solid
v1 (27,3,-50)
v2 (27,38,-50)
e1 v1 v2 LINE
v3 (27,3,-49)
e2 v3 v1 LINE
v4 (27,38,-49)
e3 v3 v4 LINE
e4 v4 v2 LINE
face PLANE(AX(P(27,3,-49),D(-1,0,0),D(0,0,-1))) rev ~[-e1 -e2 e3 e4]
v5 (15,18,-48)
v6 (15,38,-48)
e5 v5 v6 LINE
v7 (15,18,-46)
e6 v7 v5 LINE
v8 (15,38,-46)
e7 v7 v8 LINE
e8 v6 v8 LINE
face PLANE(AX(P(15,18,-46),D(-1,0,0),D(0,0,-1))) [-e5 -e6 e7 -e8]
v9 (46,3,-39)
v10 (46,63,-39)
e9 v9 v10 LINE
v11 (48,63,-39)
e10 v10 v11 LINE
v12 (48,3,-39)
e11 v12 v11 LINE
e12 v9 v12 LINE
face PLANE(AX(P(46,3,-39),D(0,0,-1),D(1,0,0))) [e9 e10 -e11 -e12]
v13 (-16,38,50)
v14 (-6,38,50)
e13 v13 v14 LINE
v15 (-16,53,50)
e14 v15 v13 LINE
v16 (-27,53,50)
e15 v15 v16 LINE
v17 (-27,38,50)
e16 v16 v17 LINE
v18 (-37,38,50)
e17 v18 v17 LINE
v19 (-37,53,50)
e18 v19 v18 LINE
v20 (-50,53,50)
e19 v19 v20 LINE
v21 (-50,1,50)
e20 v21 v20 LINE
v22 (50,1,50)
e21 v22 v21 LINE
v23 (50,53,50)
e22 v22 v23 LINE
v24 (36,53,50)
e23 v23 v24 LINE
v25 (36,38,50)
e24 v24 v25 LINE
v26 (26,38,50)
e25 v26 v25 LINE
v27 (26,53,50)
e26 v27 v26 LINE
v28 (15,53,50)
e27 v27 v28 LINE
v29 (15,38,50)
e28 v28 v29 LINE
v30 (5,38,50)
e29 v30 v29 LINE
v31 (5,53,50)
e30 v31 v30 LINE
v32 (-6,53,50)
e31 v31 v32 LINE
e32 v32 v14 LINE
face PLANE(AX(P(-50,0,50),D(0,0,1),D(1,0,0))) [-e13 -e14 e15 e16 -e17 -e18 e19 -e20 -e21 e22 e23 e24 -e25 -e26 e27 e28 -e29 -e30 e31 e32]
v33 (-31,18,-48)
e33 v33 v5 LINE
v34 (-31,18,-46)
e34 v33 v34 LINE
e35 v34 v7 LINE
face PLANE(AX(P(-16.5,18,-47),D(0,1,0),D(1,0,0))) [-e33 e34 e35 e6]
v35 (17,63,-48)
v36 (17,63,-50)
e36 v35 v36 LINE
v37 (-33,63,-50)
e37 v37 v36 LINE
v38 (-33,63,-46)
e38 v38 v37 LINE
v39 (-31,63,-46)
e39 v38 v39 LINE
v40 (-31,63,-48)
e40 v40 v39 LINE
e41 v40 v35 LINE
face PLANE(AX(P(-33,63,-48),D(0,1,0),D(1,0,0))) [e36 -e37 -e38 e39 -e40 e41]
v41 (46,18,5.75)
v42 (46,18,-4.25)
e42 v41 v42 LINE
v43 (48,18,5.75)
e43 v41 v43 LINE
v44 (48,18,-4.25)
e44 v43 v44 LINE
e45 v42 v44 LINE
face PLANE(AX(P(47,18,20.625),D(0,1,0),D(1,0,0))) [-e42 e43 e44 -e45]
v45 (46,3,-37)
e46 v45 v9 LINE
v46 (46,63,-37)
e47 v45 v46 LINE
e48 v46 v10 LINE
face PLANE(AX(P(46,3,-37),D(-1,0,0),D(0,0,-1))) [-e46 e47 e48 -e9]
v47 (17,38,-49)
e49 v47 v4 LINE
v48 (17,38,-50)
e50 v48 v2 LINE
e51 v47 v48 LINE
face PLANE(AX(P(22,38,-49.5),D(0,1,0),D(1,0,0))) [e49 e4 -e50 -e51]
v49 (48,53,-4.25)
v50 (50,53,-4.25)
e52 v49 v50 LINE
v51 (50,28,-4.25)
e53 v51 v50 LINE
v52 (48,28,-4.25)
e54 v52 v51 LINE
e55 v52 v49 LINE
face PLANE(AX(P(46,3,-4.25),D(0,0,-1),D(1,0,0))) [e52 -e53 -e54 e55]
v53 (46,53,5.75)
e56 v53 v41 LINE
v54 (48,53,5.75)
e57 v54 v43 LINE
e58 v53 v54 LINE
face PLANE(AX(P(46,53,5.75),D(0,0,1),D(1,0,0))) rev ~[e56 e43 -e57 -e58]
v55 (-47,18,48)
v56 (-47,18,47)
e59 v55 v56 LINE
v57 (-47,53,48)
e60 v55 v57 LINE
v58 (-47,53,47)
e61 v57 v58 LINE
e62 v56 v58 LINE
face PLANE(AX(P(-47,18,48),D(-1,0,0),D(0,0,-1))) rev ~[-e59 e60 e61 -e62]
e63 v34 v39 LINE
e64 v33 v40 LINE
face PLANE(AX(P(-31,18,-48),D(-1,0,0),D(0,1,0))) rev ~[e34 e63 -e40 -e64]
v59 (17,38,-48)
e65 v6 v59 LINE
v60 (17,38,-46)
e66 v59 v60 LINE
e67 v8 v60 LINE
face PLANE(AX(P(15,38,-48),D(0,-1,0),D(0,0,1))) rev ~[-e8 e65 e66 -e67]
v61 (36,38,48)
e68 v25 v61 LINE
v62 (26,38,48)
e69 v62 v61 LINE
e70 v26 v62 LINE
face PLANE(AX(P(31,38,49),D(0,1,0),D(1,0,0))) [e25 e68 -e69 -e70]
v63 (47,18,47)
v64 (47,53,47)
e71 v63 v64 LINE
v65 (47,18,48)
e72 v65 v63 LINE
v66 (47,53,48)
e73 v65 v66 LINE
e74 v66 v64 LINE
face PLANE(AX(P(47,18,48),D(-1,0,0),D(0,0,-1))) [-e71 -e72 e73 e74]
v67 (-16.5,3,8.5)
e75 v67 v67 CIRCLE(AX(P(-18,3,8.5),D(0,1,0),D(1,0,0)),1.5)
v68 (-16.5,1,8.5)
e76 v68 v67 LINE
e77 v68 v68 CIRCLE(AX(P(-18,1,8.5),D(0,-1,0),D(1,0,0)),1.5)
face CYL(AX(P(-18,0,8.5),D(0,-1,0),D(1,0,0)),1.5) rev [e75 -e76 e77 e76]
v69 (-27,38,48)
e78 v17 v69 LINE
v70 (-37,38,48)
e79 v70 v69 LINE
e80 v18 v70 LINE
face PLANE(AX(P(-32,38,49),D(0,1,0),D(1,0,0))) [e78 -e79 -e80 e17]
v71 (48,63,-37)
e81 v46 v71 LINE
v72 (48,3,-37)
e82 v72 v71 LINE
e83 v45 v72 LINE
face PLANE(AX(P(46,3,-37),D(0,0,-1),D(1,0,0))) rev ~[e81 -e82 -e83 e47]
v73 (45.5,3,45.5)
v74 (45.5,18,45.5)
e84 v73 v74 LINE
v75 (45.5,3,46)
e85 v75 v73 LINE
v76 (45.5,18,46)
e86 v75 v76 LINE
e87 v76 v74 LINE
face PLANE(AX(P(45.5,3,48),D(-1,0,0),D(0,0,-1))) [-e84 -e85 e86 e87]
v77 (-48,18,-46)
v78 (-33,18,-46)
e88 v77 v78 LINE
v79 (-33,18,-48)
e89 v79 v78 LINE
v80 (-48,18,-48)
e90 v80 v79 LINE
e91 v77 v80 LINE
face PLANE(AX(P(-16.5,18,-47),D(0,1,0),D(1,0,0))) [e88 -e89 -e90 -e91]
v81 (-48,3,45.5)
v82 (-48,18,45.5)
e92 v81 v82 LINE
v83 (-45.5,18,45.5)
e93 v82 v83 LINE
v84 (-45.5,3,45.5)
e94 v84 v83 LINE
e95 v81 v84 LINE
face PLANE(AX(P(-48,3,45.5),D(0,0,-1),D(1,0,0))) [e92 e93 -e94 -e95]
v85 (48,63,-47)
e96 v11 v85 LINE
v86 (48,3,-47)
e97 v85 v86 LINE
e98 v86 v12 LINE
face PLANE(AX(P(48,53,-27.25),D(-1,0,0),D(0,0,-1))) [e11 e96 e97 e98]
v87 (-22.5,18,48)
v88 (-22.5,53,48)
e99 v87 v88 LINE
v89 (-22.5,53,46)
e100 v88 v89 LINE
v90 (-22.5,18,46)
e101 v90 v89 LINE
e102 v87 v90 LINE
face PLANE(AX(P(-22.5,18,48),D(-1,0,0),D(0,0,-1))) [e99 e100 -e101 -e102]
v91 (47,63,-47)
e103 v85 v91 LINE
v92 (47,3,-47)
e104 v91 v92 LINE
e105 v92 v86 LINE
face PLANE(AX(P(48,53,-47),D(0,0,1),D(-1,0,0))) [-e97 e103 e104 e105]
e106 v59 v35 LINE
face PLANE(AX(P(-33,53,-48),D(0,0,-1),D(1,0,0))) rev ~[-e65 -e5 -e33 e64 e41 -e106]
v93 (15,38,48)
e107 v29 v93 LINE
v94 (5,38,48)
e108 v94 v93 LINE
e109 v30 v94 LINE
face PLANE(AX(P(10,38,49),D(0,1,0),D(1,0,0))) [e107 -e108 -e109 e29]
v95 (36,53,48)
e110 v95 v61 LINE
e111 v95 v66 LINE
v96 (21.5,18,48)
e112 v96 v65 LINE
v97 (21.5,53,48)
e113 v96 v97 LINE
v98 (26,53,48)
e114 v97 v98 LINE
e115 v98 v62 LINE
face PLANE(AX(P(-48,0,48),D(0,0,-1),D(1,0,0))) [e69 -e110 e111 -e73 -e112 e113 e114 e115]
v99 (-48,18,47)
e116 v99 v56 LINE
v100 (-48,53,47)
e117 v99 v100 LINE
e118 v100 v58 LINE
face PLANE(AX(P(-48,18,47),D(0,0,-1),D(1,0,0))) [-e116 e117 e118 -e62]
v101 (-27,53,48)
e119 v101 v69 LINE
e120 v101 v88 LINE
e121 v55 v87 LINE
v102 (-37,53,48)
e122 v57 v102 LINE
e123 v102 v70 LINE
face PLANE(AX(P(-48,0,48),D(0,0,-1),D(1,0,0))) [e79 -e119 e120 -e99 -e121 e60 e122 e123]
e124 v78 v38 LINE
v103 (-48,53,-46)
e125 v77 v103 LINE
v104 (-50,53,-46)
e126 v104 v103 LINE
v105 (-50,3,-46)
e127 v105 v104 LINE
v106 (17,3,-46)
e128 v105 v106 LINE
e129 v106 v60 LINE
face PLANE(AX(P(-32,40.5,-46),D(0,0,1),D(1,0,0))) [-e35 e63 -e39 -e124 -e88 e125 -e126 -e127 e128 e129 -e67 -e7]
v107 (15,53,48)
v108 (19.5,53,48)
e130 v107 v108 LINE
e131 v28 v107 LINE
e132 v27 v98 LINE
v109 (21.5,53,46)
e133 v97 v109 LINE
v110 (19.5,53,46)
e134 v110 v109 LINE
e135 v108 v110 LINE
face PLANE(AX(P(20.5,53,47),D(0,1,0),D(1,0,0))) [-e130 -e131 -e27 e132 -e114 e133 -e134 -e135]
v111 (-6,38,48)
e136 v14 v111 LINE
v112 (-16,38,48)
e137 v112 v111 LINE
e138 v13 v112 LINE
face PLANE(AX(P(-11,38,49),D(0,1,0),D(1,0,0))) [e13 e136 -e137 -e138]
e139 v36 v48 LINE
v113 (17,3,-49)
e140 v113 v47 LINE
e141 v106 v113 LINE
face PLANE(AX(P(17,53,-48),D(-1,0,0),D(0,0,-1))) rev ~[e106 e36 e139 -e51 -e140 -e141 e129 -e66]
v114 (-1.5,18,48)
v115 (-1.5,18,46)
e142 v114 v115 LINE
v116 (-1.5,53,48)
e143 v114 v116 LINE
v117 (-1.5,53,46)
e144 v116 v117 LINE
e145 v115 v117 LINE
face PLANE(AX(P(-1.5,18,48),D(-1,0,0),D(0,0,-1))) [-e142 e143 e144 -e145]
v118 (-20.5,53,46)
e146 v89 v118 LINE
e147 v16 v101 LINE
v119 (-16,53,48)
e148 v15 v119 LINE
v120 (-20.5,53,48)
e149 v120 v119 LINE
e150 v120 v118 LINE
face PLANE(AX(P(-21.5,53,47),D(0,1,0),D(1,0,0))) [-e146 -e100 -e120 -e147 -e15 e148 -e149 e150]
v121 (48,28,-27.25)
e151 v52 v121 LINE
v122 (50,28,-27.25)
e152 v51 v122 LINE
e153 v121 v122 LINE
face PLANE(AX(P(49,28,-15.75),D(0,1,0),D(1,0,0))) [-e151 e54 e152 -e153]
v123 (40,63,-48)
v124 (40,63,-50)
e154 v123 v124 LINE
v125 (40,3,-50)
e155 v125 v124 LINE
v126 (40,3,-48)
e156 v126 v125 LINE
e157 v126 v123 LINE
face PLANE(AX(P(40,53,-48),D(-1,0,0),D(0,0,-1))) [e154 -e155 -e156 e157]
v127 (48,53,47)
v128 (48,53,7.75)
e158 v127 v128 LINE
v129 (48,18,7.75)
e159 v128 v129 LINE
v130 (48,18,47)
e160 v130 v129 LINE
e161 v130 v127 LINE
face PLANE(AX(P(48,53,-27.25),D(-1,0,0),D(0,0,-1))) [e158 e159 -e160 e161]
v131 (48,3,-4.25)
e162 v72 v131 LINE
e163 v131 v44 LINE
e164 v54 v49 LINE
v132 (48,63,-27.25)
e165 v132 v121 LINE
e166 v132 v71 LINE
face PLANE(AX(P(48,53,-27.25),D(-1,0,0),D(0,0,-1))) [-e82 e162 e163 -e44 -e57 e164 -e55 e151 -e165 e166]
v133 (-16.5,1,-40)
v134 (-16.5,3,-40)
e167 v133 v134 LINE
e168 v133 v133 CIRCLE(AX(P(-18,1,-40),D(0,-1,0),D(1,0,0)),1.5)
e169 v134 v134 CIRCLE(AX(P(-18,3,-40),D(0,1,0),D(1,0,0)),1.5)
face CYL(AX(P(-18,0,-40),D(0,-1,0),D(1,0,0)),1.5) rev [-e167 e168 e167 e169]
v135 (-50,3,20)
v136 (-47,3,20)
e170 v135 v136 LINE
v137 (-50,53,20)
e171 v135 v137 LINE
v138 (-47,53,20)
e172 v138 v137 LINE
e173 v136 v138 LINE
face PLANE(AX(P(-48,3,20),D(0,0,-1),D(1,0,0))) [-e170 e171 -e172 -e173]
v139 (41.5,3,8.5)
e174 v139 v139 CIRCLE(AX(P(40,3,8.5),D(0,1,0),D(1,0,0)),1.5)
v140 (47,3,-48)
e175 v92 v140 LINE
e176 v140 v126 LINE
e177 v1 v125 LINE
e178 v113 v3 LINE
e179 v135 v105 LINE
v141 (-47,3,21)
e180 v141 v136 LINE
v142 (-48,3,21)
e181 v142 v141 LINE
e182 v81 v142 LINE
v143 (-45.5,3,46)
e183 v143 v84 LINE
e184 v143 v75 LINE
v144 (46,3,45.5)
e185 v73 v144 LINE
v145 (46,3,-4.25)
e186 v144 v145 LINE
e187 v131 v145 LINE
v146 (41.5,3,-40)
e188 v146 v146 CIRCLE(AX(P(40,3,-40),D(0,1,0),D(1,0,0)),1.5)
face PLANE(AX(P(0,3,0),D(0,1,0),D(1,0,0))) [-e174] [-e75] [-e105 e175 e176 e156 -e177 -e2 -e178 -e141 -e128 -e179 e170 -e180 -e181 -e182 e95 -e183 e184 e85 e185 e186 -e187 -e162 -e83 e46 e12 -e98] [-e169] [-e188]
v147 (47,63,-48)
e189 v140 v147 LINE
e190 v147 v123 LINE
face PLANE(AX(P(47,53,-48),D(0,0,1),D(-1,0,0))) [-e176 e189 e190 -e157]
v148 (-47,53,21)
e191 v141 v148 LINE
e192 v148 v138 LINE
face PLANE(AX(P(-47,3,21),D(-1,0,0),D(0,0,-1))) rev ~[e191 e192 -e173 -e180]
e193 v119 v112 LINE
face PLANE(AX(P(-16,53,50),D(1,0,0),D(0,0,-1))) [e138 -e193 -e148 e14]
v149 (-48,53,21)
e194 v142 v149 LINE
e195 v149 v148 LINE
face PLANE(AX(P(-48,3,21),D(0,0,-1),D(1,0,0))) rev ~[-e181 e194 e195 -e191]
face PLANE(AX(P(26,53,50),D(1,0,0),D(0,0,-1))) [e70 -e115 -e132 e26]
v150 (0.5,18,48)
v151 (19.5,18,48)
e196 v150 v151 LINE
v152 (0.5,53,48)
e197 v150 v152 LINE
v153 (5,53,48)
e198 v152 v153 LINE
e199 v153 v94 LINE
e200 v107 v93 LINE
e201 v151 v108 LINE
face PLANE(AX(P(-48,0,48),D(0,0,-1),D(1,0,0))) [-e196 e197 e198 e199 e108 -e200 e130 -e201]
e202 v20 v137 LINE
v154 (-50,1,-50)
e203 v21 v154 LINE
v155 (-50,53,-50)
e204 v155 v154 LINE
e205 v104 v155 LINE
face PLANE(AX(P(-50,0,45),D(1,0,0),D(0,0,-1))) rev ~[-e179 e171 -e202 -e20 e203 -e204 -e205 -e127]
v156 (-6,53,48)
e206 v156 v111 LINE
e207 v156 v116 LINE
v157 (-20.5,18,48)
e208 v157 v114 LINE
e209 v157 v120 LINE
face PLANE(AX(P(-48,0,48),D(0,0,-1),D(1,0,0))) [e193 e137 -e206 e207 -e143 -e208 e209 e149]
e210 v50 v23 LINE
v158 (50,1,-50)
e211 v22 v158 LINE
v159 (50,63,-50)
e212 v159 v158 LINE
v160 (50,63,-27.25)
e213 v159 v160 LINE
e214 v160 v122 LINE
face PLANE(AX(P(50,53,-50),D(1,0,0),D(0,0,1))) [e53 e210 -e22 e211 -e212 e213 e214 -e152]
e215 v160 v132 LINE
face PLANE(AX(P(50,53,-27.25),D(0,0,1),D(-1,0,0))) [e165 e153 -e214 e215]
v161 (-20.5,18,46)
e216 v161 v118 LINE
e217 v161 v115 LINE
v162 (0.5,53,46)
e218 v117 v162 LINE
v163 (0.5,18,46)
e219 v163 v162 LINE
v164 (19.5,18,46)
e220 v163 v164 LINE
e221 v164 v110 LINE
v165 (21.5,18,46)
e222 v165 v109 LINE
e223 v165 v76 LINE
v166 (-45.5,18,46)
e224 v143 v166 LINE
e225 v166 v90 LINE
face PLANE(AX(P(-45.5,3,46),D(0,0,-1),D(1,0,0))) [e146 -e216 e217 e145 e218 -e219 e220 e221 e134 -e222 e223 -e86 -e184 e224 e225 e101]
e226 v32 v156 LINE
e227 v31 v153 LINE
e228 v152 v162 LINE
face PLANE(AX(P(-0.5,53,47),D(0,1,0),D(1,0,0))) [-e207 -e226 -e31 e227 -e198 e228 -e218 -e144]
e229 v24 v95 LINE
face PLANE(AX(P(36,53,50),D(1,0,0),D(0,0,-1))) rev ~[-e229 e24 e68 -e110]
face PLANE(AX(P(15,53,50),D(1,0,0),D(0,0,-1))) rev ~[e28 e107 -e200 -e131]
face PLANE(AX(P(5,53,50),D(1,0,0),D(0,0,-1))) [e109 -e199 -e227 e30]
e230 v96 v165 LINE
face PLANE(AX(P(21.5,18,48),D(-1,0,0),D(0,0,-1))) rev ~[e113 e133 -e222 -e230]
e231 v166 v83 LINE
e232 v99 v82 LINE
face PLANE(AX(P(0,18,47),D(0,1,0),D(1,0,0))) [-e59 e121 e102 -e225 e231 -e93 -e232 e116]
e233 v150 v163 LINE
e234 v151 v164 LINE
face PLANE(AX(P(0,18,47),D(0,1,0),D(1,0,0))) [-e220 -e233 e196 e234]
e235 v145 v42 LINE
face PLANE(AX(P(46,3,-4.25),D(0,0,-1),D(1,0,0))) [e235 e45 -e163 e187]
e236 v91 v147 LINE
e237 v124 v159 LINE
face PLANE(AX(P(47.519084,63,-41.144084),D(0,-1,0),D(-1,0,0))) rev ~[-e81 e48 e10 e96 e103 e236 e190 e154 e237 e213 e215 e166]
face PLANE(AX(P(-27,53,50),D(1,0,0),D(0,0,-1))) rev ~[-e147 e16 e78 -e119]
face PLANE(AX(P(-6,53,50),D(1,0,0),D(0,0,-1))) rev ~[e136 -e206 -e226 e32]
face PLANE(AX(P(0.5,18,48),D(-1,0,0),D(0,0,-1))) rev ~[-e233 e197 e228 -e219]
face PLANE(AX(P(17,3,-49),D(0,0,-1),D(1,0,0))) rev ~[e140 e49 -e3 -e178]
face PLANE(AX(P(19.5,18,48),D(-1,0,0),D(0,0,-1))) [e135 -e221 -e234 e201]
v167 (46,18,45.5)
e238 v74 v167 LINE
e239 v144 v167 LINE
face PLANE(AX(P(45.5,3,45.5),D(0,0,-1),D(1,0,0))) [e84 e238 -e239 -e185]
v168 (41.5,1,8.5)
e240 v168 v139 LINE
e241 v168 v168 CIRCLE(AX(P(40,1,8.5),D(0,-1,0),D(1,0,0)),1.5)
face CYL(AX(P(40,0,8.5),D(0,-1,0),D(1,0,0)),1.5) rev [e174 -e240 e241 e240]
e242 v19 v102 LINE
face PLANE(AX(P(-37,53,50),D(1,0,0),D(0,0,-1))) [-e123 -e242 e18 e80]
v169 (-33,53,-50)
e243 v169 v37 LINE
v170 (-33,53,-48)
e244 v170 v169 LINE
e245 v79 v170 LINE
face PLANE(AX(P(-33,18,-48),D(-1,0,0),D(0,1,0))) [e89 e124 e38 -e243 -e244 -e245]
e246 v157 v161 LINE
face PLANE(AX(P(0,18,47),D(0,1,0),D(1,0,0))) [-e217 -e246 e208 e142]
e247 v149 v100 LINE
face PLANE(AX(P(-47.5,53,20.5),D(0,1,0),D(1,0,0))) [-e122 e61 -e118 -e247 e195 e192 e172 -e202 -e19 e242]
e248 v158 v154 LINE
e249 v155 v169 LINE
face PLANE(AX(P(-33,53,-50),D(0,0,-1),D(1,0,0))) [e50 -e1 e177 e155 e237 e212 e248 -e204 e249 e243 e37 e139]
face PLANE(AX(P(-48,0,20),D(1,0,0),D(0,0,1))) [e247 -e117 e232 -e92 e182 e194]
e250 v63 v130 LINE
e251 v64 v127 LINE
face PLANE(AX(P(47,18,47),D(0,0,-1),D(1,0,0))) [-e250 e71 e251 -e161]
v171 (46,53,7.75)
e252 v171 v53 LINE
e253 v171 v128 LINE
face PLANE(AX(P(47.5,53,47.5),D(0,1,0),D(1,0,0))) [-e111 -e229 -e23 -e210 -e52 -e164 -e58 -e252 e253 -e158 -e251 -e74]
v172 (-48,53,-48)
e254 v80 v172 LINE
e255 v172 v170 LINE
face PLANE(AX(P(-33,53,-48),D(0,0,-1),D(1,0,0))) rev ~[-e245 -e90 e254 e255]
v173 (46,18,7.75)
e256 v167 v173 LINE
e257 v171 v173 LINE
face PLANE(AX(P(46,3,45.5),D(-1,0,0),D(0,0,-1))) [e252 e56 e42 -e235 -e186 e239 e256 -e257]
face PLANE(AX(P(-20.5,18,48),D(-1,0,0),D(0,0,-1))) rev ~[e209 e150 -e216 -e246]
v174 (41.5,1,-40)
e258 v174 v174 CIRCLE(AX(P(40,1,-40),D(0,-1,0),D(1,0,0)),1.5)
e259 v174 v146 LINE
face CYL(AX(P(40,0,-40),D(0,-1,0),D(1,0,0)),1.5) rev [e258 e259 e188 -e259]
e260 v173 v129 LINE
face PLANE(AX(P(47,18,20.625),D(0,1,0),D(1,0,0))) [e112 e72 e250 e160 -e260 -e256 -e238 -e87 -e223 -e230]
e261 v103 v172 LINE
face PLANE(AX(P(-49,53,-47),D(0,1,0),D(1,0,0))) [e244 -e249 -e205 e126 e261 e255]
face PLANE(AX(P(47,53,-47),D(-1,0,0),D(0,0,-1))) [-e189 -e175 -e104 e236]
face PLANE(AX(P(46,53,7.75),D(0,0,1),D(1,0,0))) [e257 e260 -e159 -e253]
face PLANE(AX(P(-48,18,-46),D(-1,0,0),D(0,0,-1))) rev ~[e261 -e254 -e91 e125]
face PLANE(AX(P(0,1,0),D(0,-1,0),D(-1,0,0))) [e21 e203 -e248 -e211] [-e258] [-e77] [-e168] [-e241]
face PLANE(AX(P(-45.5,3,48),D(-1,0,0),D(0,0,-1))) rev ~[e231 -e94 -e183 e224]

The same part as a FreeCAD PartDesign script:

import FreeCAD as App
import Part
import Sketcher

V = App.Vector


def add_polygon(sketch, points):
    """Adds a closed chain of lines whose ends are joined by coincident constraints."""
    first, n = sketch.GeometryCount, len(points)
    for a, b in zip(points, points[1:] + points[:1]):
        sketch.addGeometry(Part.LineSegment(App.Vector(*a, 0), App.Vector(*b, 0)), False)
    for i in range(n):
        sketch.addConstraint(Sketcher.Constraint("Coincident", first + i, 2, first + (i + 1) % n, 1))

doc = App.newDocument("Part")
body = doc.addObject("PartDesign::Body", "Body")

sketch1 = body.newObject("Sketcher::SketchObject", "Sketch")
sketch1.AttachmentSupport = (doc.getObject("XZ_Plane"), [""])
sketch1.MapMode = "FlatFace"
add_polygon(sketch1, [(-50, -50), (-50, 50), (50, 50), (50, -50)])
sketch1.addConstraint(Sketcher.Constraint("Vertical", 0))
sketch1.addConstraint(Sketcher.Constraint("Horizontal", 1))
sketch1.addConstraint(Sketcher.Constraint("Vertical", 2))
sketch1.addConstraint(Sketcher.Constraint("Horizontal", 3))
sketch1.addConstraint(Sketcher.Constraint("Symmetric", 0, 2, 2, 2, -1, 1))
sketch1.addConstraint(Sketcher.Constraint("Equal", 3, 0))
sketch1.addConstraint(Sketcher.Constraint("DistanceX", 1, 1, 1, 2, 100.0))
pad1 = body.newObject("PartDesign::Pad", "Pad")
pad1.Profile = sketch1
pad1.Length = 3
pad1.Reversed = True

sketch2 = body.newObject("Sketcher::SketchObject", "Sketch001")
sketch2.AttachmentSupport = (doc.getObject("XZ_Plane"), [""])
sketch2.MapMode = "FlatFace"
sketch2.addGeometry(Part.Circle(V(-18, -40, 0), V(0, 0, 1), 1.5), False)
sketch2.addGeometry(Part.Circle(V(40, -40, 0), V(0, 0, 1), 1.5), False)
sketch2.addGeometry(Part.Circle(V(40, 8.5, 0), V(0, 0, 1), 1.5), False)
sketch2.addGeometry(Part.Circle(V(-18, 8.5, 0), V(0, 0, 1), 1.5), False)
sketch2.addConstraint(Sketcher.Constraint("Equal", 0, 1))
sketch2.addConstraint(Sketcher.Constraint("Equal", 1, 2))
sketch2.addConstraint(Sketcher.Constraint("Equal", 2, 3))
sketch2.addConstraint(Sketcher.Constraint("Horizontal", 0, 3, 1, 3))
sketch2.addConstraint(Sketcher.Constraint("Horizontal", 2, 3, 3, 3))
sketch2.addConstraint(Sketcher.Constraint("Vertical", 1, 3, 2, 3))
sketch2.addConstraint(Sketcher.Constraint("Vertical", 0, 3, 3, 3))
sketch2.addConstraint(Sketcher.Constraint("Diameter", 0, 3.0))
sketch2.addConstraint(Sketcher.Constraint("DistanceX", 0, 3, -1, 1, 18.0))
sketch2.addConstraint(Sketcher.Constraint("DistanceY", 0, 3, -1, 1, 40.0))
sketch2.addConstraint(Sketcher.Constraint("DistanceX", -1, 1, 1, 3, 40.0))
sketch2.addConstraint(Sketcher.Constraint("DistanceY", -1, 1, 2, 3, 8.5))
pocket1 = body.newObject("PartDesign::Pocket", "Pocket")
pocket1.Profile = sketch2
pocket1.Length = 3

sketch3 = body.newObject("Sketcher::SketchObject", "Sketch002")
sketch3.AttachmentSupport = (doc.getObject("XZ_Plane"), [""])
sketch3.MapMode = "FlatFace"
add_polygon(sketch3, [(40, -50), (40, -48), (48, -48), (48, -27.2), (50, -27.2), (50, -50)])
add_polygon(sketch3, [(-48, 20), (-50, 20), (-50, 50), (50, 50), (50, -4.2), (48, -4.2), (48, 48), (-48, 48)])
add_polygon(sketch3, [(-50, -50), (-50, -48), (25, -48), (25, -50)])
sketch3.addConstraint(Sketcher.Constraint("Vertical", 0))
sketch3.addConstraint(Sketcher.Constraint("Horizontal", 1))
sketch3.addConstraint(Sketcher.Constraint("Vertical", 2))
sketch3.addConstraint(Sketcher.Constraint("Horizontal", 3))
sketch3.addConstraint(Sketcher.Constraint("Vertical", 4))
sketch3.addConstraint(Sketcher.Constraint("Horizontal", 5))
sketch3.addConstraint(Sketcher.Constraint("Horizontal", 6))
sketch3.addConstraint(Sketcher.Constraint("Vertical", 7))
sketch3.addConstraint(Sketcher.Constraint("Horizontal", 8))
sketch3.addConstraint(Sketcher.Constraint("Vertical", 9))
sketch3.addConstraint(Sketcher.Constraint("Horizontal", 10))
sketch3.addConstraint(Sketcher.Constraint("Vertical", 11))
sketch3.addConstraint(Sketcher.Constraint("Horizontal", 12))
sketch3.addConstraint(Sketcher.Constraint("Vertical", 13))
sketch3.addConstraint(Sketcher.Constraint("Vertical", 14))
sketch3.addConstraint(Sketcher.Constraint("Horizontal", 15))
sketch3.addConstraint(Sketcher.Constraint("Vertical", 16))
sketch3.addConstraint(Sketcher.Constraint("Horizontal", 17))
sketch3.addConstraint(Sketcher.Constraint("Symmetric", 4, 2, 7, 2, -1, 1))
sketch3.addConstraint(Sketcher.Constraint("Symmetric", 1, 2, 12, 2, -1, 1))
sketch3.addConstraint(Sketcher.Constraint("Symmetric", 8, 2, 17, 2, -1, 1))
sketch3.addConstraint(Sketcher.Constraint("Horizontal", 1, 2, 14, 2))
sketch3.addConstraint(Sketcher.Constraint("Vertical", 4, 2, 8, 2))
sketch3.addConstraint(Sketcher.Constraint("Vertical", 2, 2, 10, 2))
sketch3.addConstraint(Sketcher.Constraint("Equal", 10, 0))
sketch3.addConstraint(Sketcher.Constraint("DistanceX", 1, 1, 1, 2, 8.0))
sketch3.addConstraint(Sketcher.Constraint("DistanceX", 3, 1, 3, 2, 2.0))
sketch3.addConstraint(Sketcher.Constraint("DistanceX", 8, 1, 8, 2, 100.0))
sketch3.addConstraint(Sketcher.Constraint("DistanceX", 15, 1, 15, 2, 75.0))
sketch3.addConstraint(Sketcher.Constraint("DistanceY", 7, 1, 7, 2, 30.0))
sketch3.addConstraint(Sketcher.Constraint("DistanceY", 0, 2, -1, 1, 48.0))
sketch3.addConstraint(Sketcher.Constraint("DistanceY", 3, 2, 9, 2, 23.0))
sketch3.addConstraint(Sketcher.Constraint("DistanceY", 2, 1, 2, 2, 20.75))
pad2 = body.newObject("PartDesign::Pad", "Pad001")
pad2.Profile = sketch3
pad2.Length = 53
pad2.Reversed = True

sketch4 = body.newObject("Sketcher::SketchObject", "Sketch003")
sketch4.AttachmentSupport = (doc.getObject("XZ_Plane"), [""])
sketch4.MapMode = "FlatFace"
sketch4.AttachmentOffset = App.Placement(V(0, 0, -53), App.Rotation())
add_polygon(sketch4, [(17, -50), (17, -48), (25, -48), (25, -50)])
sketch4.addConstraint(Sketcher.Constraint("Vertical", 0))
sketch4.addConstraint(Sketcher.Constraint("Horizontal", 1))
sketch4.addConstraint(Sketcher.Constraint("Vertical", 2))
sketch4.addConstraint(Sketcher.Constraint("Horizontal", 3))
sketch4.addConstraint(Sketcher.Constraint("DistanceX", 1, 1, 1, 2, 8.0))
sketch4.addConstraint(Sketcher.Constraint("DistanceY", 0, 1, 0, 2, 2.0))
sketch4.addConstraint(Sketcher.Constraint("DistanceX", -1, 1, 0, 2, 17.0))
sketch4.addConstraint(Sketcher.Constraint("DistanceY", 0, 2, -1, 1, 48.0))
pocket2 = body.newObject("PartDesign::Pocket", "Pocket001")
pocket2.Profile = sketch4
pocket2.Length = 50
pocket2.Reversed = True

sketch5 = body.newObject("Sketcher::SketchObject", "Sketch004")
sketch5.AttachmentSupport = (doc.getObject("XZ_Plane"), [""])
sketch5.MapMode = "FlatFace"
sketch5.AttachmentOffset = App.Placement(V(0, 0, -53), App.Rotation())
add_polygon(sketch5, [(-37, 48), (-37, 50), (-27, 50), (-27, 48)])
add_polygon(sketch5, [(-16, 48), (-16, 50), (-6, 50), (-6, 48)])
add_polygon(sketch5, [(5, 48), (5, 50), (15, 50), (15, 48)])
add_polygon(sketch5, [(26, 48), (26, 50), (36, 50), (36, 48)])
sketch5.addConstraint(Sketcher.Constraint("Vertical", 0))
sketch5.addConstraint(Sketcher.Constraint("Horizontal", 1))
sketch5.addConstraint(Sketcher.Constraint("Vertical", 2))
sketch5.addConstraint(Sketcher.Constraint("Horizontal", 3))
sketch5.addConstraint(Sketcher.Constraint("Vertical", 4))
sketch5.addConstraint(Sketcher.Constraint("Horizontal", 5))
sketch5.addConstraint(Sketcher.Constraint("Vertical", 6))
sketch5.addConstraint(Sketcher.Constraint("Horizontal", 7))
sketch5.addConstraint(Sketcher.Constraint("Vertical", 8))
sketch5.addConstraint(Sketcher.Constraint("Horizontal", 9))
sketch5.addConstraint(Sketcher.Constraint("Vertical", 10))
sketch5.addConstraint(Sketcher.Constraint("Horizontal", 11))
sketch5.addConstraint(Sketcher.Constraint("Vertical", 12))
sketch5.addConstraint(Sketcher.Constraint("Horizontal", 13))
sketch5.addConstraint(Sketcher.Constraint("Vertical", 14))
sketch5.addConstraint(Sketcher.Constraint("Horizontal", 15))
sketch5.addConstraint(Sketcher.Constraint("Horizontal", 1, 2, 4, 2))
sketch5.addConstraint(Sketcher.Constraint("Horizontal", 3, 2, 6, 2))
sketch5.addConstraint(Sketcher.Constraint("Horizontal", 5, 2, 8, 2))
sketch5.addConstraint(Sketcher.Constraint("Horizontal", 7, 2, 10, 2))
sketch5.addConstraint(Sketcher.Constraint("Horizontal", 9, 2, 12, 2))
sketch5.addConstraint(Sketcher.Constraint("Horizontal", 11, 2, 14, 2))
sketch5.addConstraint(Sketcher.Constraint("Equal", 3, 5))
sketch5.addConstraint(Sketcher.Constraint("Equal", 7, 9))
sketch5.addConstraint(Sketcher.Constraint("Equal", 11, 13))
sketch5.addConstraint(Sketcher.Constraint("DistanceX", 1, 1, 1, 2, 10.0))
sketch5.addConstraint(Sketcher.Constraint("DistanceY", 0, 1, 0, 2, 2.0))
sketch5.addConstraint(Sketcher.Constraint("DistanceX", 0, 2, -1, 1, 37.0))
sketch5.addConstraint(Sketcher.Constraint("DistanceY", -1, 1, 0, 2, 50.0))
sketch5.addConstraint(Sketcher.Constraint("DistanceX", 4, 2, -1, 1, 16.0))
sketch5.addConstraint(Sketcher.Constraint("DistanceX", -1, 1, 8, 2, 5.0))
sketch5.addConstraint(Sketcher.Constraint("DistanceX", -1, 1, 12, 2, 26.0))
pocket3 = body.newObject("PartDesign::Pocket", "Pocket002")
pocket3.Profile = sketch5
pocket3.Length = 15
pocket3.Reversed = True

sketch6 = body.newObject("Sketcher::SketchObject", "Sketch005")
sketch6.AttachmentSupport = (doc.getObject("XZ_Plane"), [""])
sketch6.MapMode = "FlatFace"
sketch6.AttachmentOffset = App.Placement(V(0, 0, -3), App.Rotation())
add_polygon(sketch6, [(-50, -48), (-50, -46), (17, -46), (17, -48)])
sketch6.addConstraint(Sketcher.Constraint("Vertical", 0))
sketch6.addConstraint(Sketcher.Constraint("Horizontal", 1))
sketch6.addConstraint(Sketcher.Constraint("Vertical", 2))
sketch6.addConstraint(Sketcher.Constraint("Horizontal", 3))
sketch6.addConstraint(Sketcher.Constraint("DistanceX", 1, 1, 1, 2, 67.0))
sketch6.addConstraint(Sketcher.Constraint("DistanceY", 0, 1, 0, 2, 2.0))
sketch6.addConstraint(Sketcher.Constraint("DistanceX", 0, 2, -1, 1, 50.0))
sketch6.addConstraint(Sketcher.Constraint("DistanceY", 0, 2, -1, 1, 46.0))
pad3 = body.newObject("PartDesign::Pad", "Pad002")
pad3.Profile = sketch6
pad3.Length = 15
pad3.Reversed = True

sketch7 = body.newObject("Sketcher::SketchObject", "Sketch006")
sketch7.AttachmentSupport = (doc.getObject("XZ_Plane"), [""])
sketch7.MapMode = "FlatFace"
sketch7.AttachmentOffset = App.Placement(V(0, 0, -3), App.Rotation())
add_polygon(sketch7, [(45.5, 45.5), (45.5, 48), (48, 48), (48, 45.5)])
sketch7.addConstraint(Sketcher.Constraint("Vertical", 0))
sketch7.addConstraint(Sketcher.Constraint("Horizontal", 1))
sketch7.addConstraint(Sketcher.Constraint("Vertical", 2))
sketch7.addConstraint(Sketcher.Constraint("Horizontal", 3))
sketch7.addConstraint(Sketcher.Constraint("Equal", 3, 0))
sketch7.addConstraint(Sketcher.Constraint("DistanceX", 1, 1, 1, 2, 2.5))
sketch7.addConstraint(Sketcher.Constraint("DistanceY", -1, 1, 0, 2, 48.0))
sketch7.addConstraint(Sketcher.Constraint("DistanceX", -1, 1, 1, 2, 48.0))
pad4 = body.newObject("PartDesign::Pad", "Pad003")
pad4.Profile = sketch7
pad4.Length = 15
pad4.Reversed = True

sketch8 = body.newObject("Sketcher::SketchObject", "Sketch007")
sketch8.AttachmentSupport = (doc.getObject("XZ_Plane"), [""])
sketch8.MapMode = "FlatFace"
sketch8.AttachmentOffset = App.Placement(V(0, 0, -3), App.Rotation())
add_polygon(sketch8, [(-48, 45.5), (-48, 48), (-45.5, 48), (-45.5, 45.5)])
sketch8.addConstraint(Sketcher.Constraint("Vertical", 0))
sketch8.addConstraint(Sketcher.Constraint("Horizontal", 1))
sketch8.addConstraint(Sketcher.Constraint("Vertical", 2))
sketch8.addConstraint(Sketcher.Constraint("Horizontal", 3))
sketch8.addConstraint(Sketcher.Constraint("Equal", 3, 0))
sketch8.addConstraint(Sketcher.Constraint("DistanceX", 1, 1, 1, 2, 2.5))
sketch8.addConstraint(Sketcher.Constraint("DistanceX", 0, 2, -1, 1, 48.0))
sketch8.addConstraint(Sketcher.Constraint("DistanceY", -1, 1, 0, 2, 48.0))
pad5 = body.newObject("PartDesign::Pad", "Pad004")
pad5.Profile = sketch8
pad5.Length = 15
pad5.Reversed = True

sketch9 = body.newObject("Sketcher::SketchObject", "Sketch008")
sketch9.AttachmentSupport = (doc.getObject("XZ_Plane"), [""])
sketch9.MapMode = "FlatFace"
sketch9.AttachmentOffset = App.Placement(V(0, 0, -3), App.Rotation())
add_polygon(sketch9, [(47, -48), (47, -47), (48, -47), (48, -48)])
sketch9.addConstraint(Sketcher.Constraint("Vertical", 0))
sketch9.addConstraint(Sketcher.Constraint("Horizontal", 1))
sketch9.addConstraint(Sketcher.Constraint("Vertical", 2))
sketch9.addConstraint(Sketcher.Constraint("Horizontal", 3))
sketch9.addConstraint(Sketcher.Constraint("Equal", 3, 0))
sketch9.addConstraint(Sketcher.Constraint("DistanceX", 1, 1, 1, 2, 1.0))
sketch9.addConstraint(Sketcher.Constraint("DistanceX", -1, 1, 0, 2, 47.0))
sketch9.addConstraint(Sketcher.Constraint("DistanceY", 0, 2, -1, 1, 47.0))
pad6 = body.newObject("PartDesign::Pad", "Pad005")
pad6.Profile = sketch9
pad6.Length = 50
pad6.Reversed = True

sketch10 = body.newObject("Sketcher::SketchObject", "Sketch009")
sketch10.AttachmentSupport = (doc.getObject("XZ_Plane"), [""])
sketch10.MapMode = "FlatFace"
sketch10.AttachmentOffset = App.Placement(V(0, 0, -18), App.Rotation())
add_polygon(sketch10, [(47, 47), (47, 48), (48, 48), (48, 47)])
sketch10.addConstraint(Sketcher.Constraint("Vertical", 0))
sketch10.addConstraint(Sketcher.Constraint("Horizontal", 1))
sketch10.addConstraint(Sketcher.Constraint("Vertical", 2))
sketch10.addConstraint(Sketcher.Constraint("Horizontal", 3))
sketch10.addConstraint(Sketcher.Constraint("Equal", 3, 0))
sketch10.addConstraint(Sketcher.Constraint("DistanceX", 1, 1, 1, 2, 1.0))
sketch10.addConstraint(Sketcher.Constraint("DistanceX", -1, 1, 0, 2, 47.0))
sketch10.addConstraint(Sketcher.Constraint("DistanceY", -1, 1, 0, 2, 48.0))
pad7 = body.newObject("PartDesign::Pad", "Pad006")
pad7.Profile = sketch10
pad7.Length = 35
pad7.Reversed = True

sketch11 = body.newObject("Sketcher::SketchObject", "Sketch010")
sketch11.AttachmentSupport = (doc.getObject("XZ_Plane"), [""])
sketch11.MapMode = "FlatFace"
sketch11.AttachmentOffset = App.Placement(V(0, 0, -18), App.Rotation())
add_polygon(sketch11, [(-48, 47), (-48, 48), (-47, 48), (-47, 47)])
sketch11.addConstraint(Sketcher.Constraint("Vertical", 0))
sketch11.addConstraint(Sketcher.Constraint("Horizontal", 1))
sketch11.addConstraint(Sketcher.Constraint("Vertical", 2))
sketch11.addConstraint(Sketcher.Constraint("Horizontal", 3))
sketch11.addConstraint(Sketcher.Constraint("Equal", 3, 0))
sketch11.addConstraint(Sketcher.Constraint("DistanceX", 1, 1, 1, 2, 1.0))
sketch11.addConstraint(Sketcher.Constraint("DistanceX", 0, 2, -1, 1, 48.0))
sketch11.addConstraint(Sketcher.Constraint("DistanceY", -1, 1, 0, 2, 48.0))
pad8 = body.newObject("PartDesign::Pad", "Pad007")
pad8.Profile = sketch11
pad8.Length = 35
pad8.Reversed = True

sketch12 = body.newObject("Sketcher::SketchObject", "Sketch011")
sketch12.AttachmentSupport = (doc.getObject("XZ_Plane"), [""])
sketch12.MapMode = "FlatFace"
sketch12.AttachmentOffset = App.Placement(V(0, 0, -3), App.Rotation())
add_polygon(sketch12, [(-48, 20), (-48, 21), (-47, 21), (-47, 20)])
sketch12.addConstraint(Sketcher.Constraint("Vertical", 0))
sketch12.addConstraint(Sketcher.Constraint("Horizontal", 1))
sketch12.addConstraint(Sketcher.Constraint("Vertical", 2))
sketch12.addConstraint(Sketcher.Constraint("Horizontal", 3))
sketch12.addConstraint(Sketcher.Constraint("Equal", 3, 0))
sketch12.addConstraint(Sketcher.Constraint("DistanceX", 1, 1, 1, 2, 1.0))
sketch12.addConstraint(Sketcher.Constraint("DistanceX", 0, 2, -1, 1, 48.0))
sketch12.addConstraint(Sketcher.Constraint("DistanceY", -1, 1, 0, 2, 21.0))
pad9 = body.newObject("PartDesign::Pad", "Pad008")
pad9.Profile = sketch12
pad9.Length = 50
pad9.Reversed = True

sketch13 = body.newObject("Sketcher::SketchObject", "Sketch012")
sketch13.AttachmentSupport = (doc.getObject("XZ_Plane"), [""])
sketch13.MapMode = "FlatFace"
sketch13.AttachmentOffset = App.Placement(V(0, 0, -3), App.Rotation())
add_polygon(sketch13, [(-45.5, 46), (-45.5, 48), (45.5, 48), (45.5, 46)])
sketch13.addConstraint(Sketcher.Constraint("Vertical", 0))
sketch13.addConstraint(Sketcher.Constraint("Horizontal", 1))
sketch13.addConstraint(Sketcher.Constraint("Vertical", 2))
sketch13.addConstraint(Sketcher.Constraint("Horizontal", 3))
sketch13.addConstraint(Sketcher.Constraint("DistanceX", 1, 1, 1, 2, 91.0))
sketch13.addConstraint(Sketcher.Constraint("DistanceY", 0, 1, 0, 2, 2.0))
sketch13.addConstraint(Sketcher.Constraint("DistanceY", -1, 1, 0, 2, 48.0))
sketch13.addConstraint(Sketcher.Constraint("DistanceX", 0, 2, -1, 1, 45.5))
pad10 = body.newObject("PartDesign::Pad", "Pad009")
pad10.Profile = sketch13
pad10.Length = 15
pad10.Reversed = True

sketch14 = body.newObject("Sketcher::SketchObject", "Sketch013")
sketch14.AttachmentSupport = (doc.getObject("XZ_Plane"), [""])
sketch14.MapMode = "FlatFace"
sketch14.AttachmentOffset = App.Placement(V(0, 0, -18), App.Rotation())
add_polygon(sketch14, [(19.5, 46), (19.5, 48), (21.5, 48), (21.5, 46)])
add_polygon(sketch14, [(-1.5, 46), (-1.5, 48), (0.5, 48), (0.5, 46)])
add_polygon(sketch14, [(-22.5, 46), (-22.5, 48), (-20.5, 48), (-20.5, 46)])
sketch14.addConstraint(Sketcher.Constraint("Vertical", 0))
sketch14.addConstraint(Sketcher.Constraint("Horizontal", 1))
sketch14.addConstraint(Sketcher.Constraint("Vertical", 2))
sketch14.addConstraint(Sketcher.Constraint("Horizontal", 3))
sketch14.addConstraint(Sketcher.Constraint("Vertical", 4))
sketch14.addConstraint(Sketcher.Constraint("Horizontal", 5))
sketch14.addConstraint(Sketcher.Constraint("Vertical", 6))
sketch14.addConstraint(Sketcher.Constraint("Horizontal", 7))
sketch14.addConstraint(Sketcher.Constraint("Vertical", 8))
sketch14.addConstraint(Sketcher.Constraint("Horizontal", 9))
sketch14.addConstraint(Sketcher.Constraint("Vertical", 10))
sketch14.addConstraint(Sketcher.Constraint("Horizontal", 11))
sketch14.addConstraint(Sketcher.Constraint("Horizontal", 1, 2, 4, 2))
sketch14.addConstraint(Sketcher.Constraint("Horizontal", 3, 2, 6, 2))
sketch14.addConstraint(Sketcher.Constraint("Horizontal", 5, 2, 8, 2))
sketch14.addConstraint(Sketcher.Constraint("Horizontal", 7, 2, 10, 2))
sketch14.addConstraint(Sketcher.Constraint("Equal", 3, 5))
sketch14.addConstraint(Sketcher.Constraint("Equal", 7, 9))
sketch14.addConstraint(Sketcher.Constraint("Equal", 11, 0))
sketch14.addConstraint(Sketcher.Constraint("DistanceX", 1, 1, 1, 2, 2.0))
sketch14.addConstraint(Sketcher.Constraint("DistanceY", -1, 1, 0, 2, 48.0))
sketch14.addConstraint(Sketcher.Constraint("DistanceX", 4, 2, 0, 2, 21.0))
sketch14.addConstraint(Sketcher.Constraint("DistanceX", 8, 2, 4, 2, 21.0))
sketch14.addConstraint(Sketcher.Constraint("DistanceX", -1, 1, 0, 2, 19.5))
pad11 = body.newObject("PartDesign::Pad", "Pad010")
pad11.Profile = sketch14
pad11.Length = 35
pad11.Reversed = True

sketch15 = body.newObject("Sketcher::SketchObject", "Sketch014")
sketch15.AttachmentSupport = (doc.getObject("XZ_Plane"), [""])
sketch15.MapMode = "FlatFace"
sketch15.AttachmentOffset = App.Placement(V(0, 0, -18), App.Rotation())
add_polygon(sketch15, [(-50, -48), (-50, -46), (-48, -46), (-48, -48)])
add_polygon(sketch15, [(15, -48), (15, -46), (17, -46), (17, -48)])
sketch15.addConstraint(Sketcher.Constraint("Vertical", 0))
sketch15.addConstraint(Sketcher.Constraint("Horizontal", 1))
sketch15.addConstraint(Sketcher.Constraint("Vertical", 2))
sketch15.addConstraint(Sketcher.Constraint("Horizontal", 3))
sketch15.addConstraint(Sketcher.Constraint("Vertical", 4))
sketch15.addConstraint(Sketcher.Constraint("Horizontal", 5))
sketch15.addConstraint(Sketcher.Constraint("Vertical", 6))
sketch15.addConstraint(Sketcher.Constraint("Horizontal", 7))
sketch15.addConstraint(Sketcher.Constraint("Horizontal", 1, 2, 4, 2))
sketch15.addConstraint(Sketcher.Constraint("Horizontal", 3, 2, 6, 2))
sketch15.addConstraint(Sketcher.Constraint("Equal", 3, 5))
sketch15.addConstraint(Sketcher.Constraint("Equal", 7, 0))
sketch15.addConstraint(Sketcher.Constraint("DistanceX", 1, 1, 1, 2, 2.0))
sketch15.addConstraint(Sketcher.Constraint("DistanceX", 0, 2, -1, 1, 50.0))
sketch15.addConstraint(Sketcher.Constraint("DistanceY", 0, 2, -1, 1, 46.0))
sketch15.addConstraint(Sketcher.Constraint("DistanceX", -1, 1, 4, 2, 15.0))
pad12 = body.newObject("PartDesign::Pad", "Pad011")
pad12.Profile = sketch15
pad12.Length = 35
pad12.Reversed = True

sketch16 = body.newObject("Sketcher::SketchObject", "Sketch015")
sketch16.AttachmentSupport = (doc.getObject("XZ_Plane"), [""])
sketch16.MapMode = "FlatFace"
sketch16.AttachmentOffset = App.Placement(V(0, 0, -3), App.Rotation())
add_polygon(sketch16, [(46, -4.2), (46, 45.5), (48, 45.5), (48, -4.2)])
sketch16.addConstraint(Sketcher.Constraint("Vertical", 0))
sketch16.addConstraint(Sketcher.Constraint("Horizontal", 1))
sketch16.addConstraint(Sketcher.Constraint("Vertical", 2))
sketch16.addConstraint(Sketcher.Constraint("Horizontal", 3))
sketch16.addConstraint(Sketcher.Constraint("DistanceX", 1, 1, 1, 2, 2.0))
sketch16.addConstraint(Sketcher.Constraint("DistanceX", -1, 1, 0, 2, 46.0))
sketch16.addConstraint(Sketcher.Constraint("DistanceY", 0, 1, 0, 2, 49.75))
sketch16.addConstraint(Sketcher.Constraint("DistanceY", -1, 1, 0, 2, 45.5))
pad13 = body.newObject("PartDesign::Pad", "Pad012")
pad13.Profile = sketch16
pad13.Length = 15
pad13.Reversed = True

sketch17 = body.newObject("Sketcher::SketchObject", "Sketch016")
sketch17.AttachmentSupport = (doc.getObject("XZ_Plane"), [""])
sketch17.MapMode = "FlatFace"
add_polygon(sketch17, [(-50, 45), (-50, 50), (50, 50), (50, 45)])
add_polygon(sketch17, [(-50, -50), (-50, -45), (50, -45), (50, -50)])
sketch17.addConstraint(Sketcher.Constraint("Vertical", 0))
sketch17.addConstraint(Sketcher.Constraint("Horizontal", 1))
sketch17.addConstraint(Sketcher.Constraint("Vertical", 2))
sketch17.addConstraint(Sketcher.Constraint("Horizontal", 3))
sketch17.addConstraint(Sketcher.Constraint("Vertical", 4))
sketch17.addConstraint(Sketcher.Constraint("Horizontal", 5))
sketch17.addConstraint(Sketcher.Constraint("Vertical", 6))
sketch17.addConstraint(Sketcher.Constraint("Horizontal", 7))
sketch17.addConstraint(Sketcher.Constraint("Symmetric", 2, 2, 4, 2, -1, 1))
sketch17.addConstraint(Sketcher.Constraint("Symmetric", 0, 2, 6, 2, -1, 1))
sketch17.addConstraint(Sketcher.Constraint("Vertical", 3, 2, 4, 2))
sketch17.addConstraint(Sketcher.Constraint("DistanceX", 1, 1, 1, 2, 100.0))
sketch17.addConstraint(Sketcher.Constraint("DistanceY", 0, 1, 0, 2, 5.0))
sketch17.addConstraint(Sketcher.Constraint("DistanceY", -1, 1, 0, 2, 50.0))
pad14 = body.newObject("PartDesign::Pad", "Pad013")
pad14.Profile = sketch17
pad14.Length = 5

sketch18 = body.newObject("Sketcher::SketchObject", "Sketch017")
sketch18.AttachmentSupport = (doc.getObject("XZ_Plane"), [""])
sketch18.MapMode = "FlatFace"
add_polygon(sketch18, [(-45, -45), (-45, 45), (-50, 45), (-50, -45)])
add_polygon(sketch18, [(50, -45), (50, 45), (45, 45), (45, -45)])
sketch18.addConstraint(Sketcher.Constraint("Vertical", 0))
sketch18.addConstraint(Sketcher.Constraint("Horizontal", 1))
sketch18.addConstraint(Sketcher.Constraint("Vertical", 2))
sketch18.addConstraint(Sketcher.Constraint("Horizontal", 3))
sketch18.addConstraint(Sketcher.Constraint("Vertical", 4))
sketch18.addConstraint(Sketcher.Constraint("Horizontal", 5))
sketch18.addConstraint(Sketcher.Constraint("Vertical", 6))
sketch18.addConstraint(Sketcher.Constraint("Horizontal", 7))
sketch18.addConstraint(Sketcher.Constraint("Symmetric", 2, 2, 4, 2, -1, 1))
sketch18.addConstraint(Sketcher.Constraint("Symmetric", 0, 2, 6, 2, -1, 1))
sketch18.addConstraint(Sketcher.Constraint("Horizontal", 1, 2, 4, 2))
sketch18.addConstraint(Sketcher.Constraint("DistanceX", 1, 2, 1, 1, 5.0))
sketch18.addConstraint(Sketcher.Constraint("DistanceY", 0, 1, 0, 2, 90.0))
sketch18.addConstraint(Sketcher.Constraint("DistanceX", 0, 2, -1, 1, 45.0))
pad15 = body.newObject("PartDesign::Pad", "Pad014")
pad15.Profile = sketch18
pad15.Length = 5

sketch19 = body.newObject("Sketcher::SketchObject", "Sketch018")
sketch19.AttachmentSupport = (doc.getObject("XZ_Plane"), [""])
sketch19.MapMode = "FlatFace"
sketch19.AttachmentOffset = App.Placement(V(0, 0, 5), App.Rotation())
add_polygon(sketch19, [(50, -50), (50, 50), (-50, 50), (-50, -50)])
sketch19.addConstraint(Sketcher.Constraint("Vertical", 0))
sketch19.addConstraint(Sketcher.Constraint("Horizontal", 1))
sketch19.addConstraint(Sketcher.Constraint("Vertical", 2))
sketch19.addConstraint(Sketcher.Constraint("Horizontal", 3))
sketch19.addConstraint(Sketcher.Constraint("Symmetric", 0, 2, 2, 2, -1, 1))
sketch19.addConstraint(Sketcher.Constraint("Equal", 3, 0))
sketch19.addConstraint(Sketcher.Constraint("DistanceX", 1, 2, 1, 1, 100.0))
pocket4 = body.newObject("PartDesign::Pocket", "Pocket003")
pocket4.Profile = sketch19
pocket4.Length = 6

sketch20 = body.newObject("Sketcher::SketchObject", "Sketch019")
sketch20.AttachmentSupport = (doc.getObject("YZ_Plane"), [""])
sketch20.MapMode = "FlatFace"
sketch20.AttachmentOffset = App.Placement(V(0, 0, 15), App.Rotation())
add_polygon(sketch20, [(53, -48), (38, -48), (38, -46), (53, -46)])
sketch20.addConstraint(Sketcher.Constraint("Horizontal", 0))
sketch20.addConstraint(Sketcher.Constraint("Vertical", 1))
sketch20.addConstraint(Sketcher.Constraint("Horizontal", 2))
sketch20.addConstraint(Sketcher.Constraint("Vertical", 3))
sketch20.addConstraint(Sketcher.Constraint("DistanceX", 0, 2, 0, 1, 15.0))
sketch20.addConstraint(Sketcher.Constraint("DistanceY", 1, 1, 1, 2, 2.0))
sketch20.addConstraint(Sketcher.Constraint("DistanceX", -1, 1, 0, 2, 38.0))
sketch20.addConstraint(Sketcher.Constraint("DistanceY", 0, 2, -1, 1, 48.0))
pocket5 = body.newObject("PartDesign::Pocket", "Pocket004")
pocket5.Profile = sketch20
pocket5.Length = 6
pocket5.Reversed = True

sketch21 = body.newObject("Sketcher::SketchObject", "Sketch020")
sketch21.AttachmentSupport = (doc.getObject("XZ_Plane"), [""])
sketch21.MapMode = "FlatFace"
sketch21.AttachmentOffset = App.Placement(V(0, 0, -3), App.Rotation())
add_polygon(sketch21, [(48, -27.2), (48, -4.2), (50, -4.2), (50, -27.2)])
sketch21.addConstraint(Sketcher.Constraint("Vertical", 0))
sketch21.addConstraint(Sketcher.Constraint("Horizontal", 1))
sketch21.addConstraint(Sketcher.Constraint("Vertical", 2))
sketch21.addConstraint(Sketcher.Constraint("Horizontal", 3))
sketch21.addConstraint(Sketcher.Constraint("DistanceX", 1, 1, 1, 2, 2.0))
sketch21.addConstraint(Sketcher.Constraint("DistanceY", 0, 1, 0, 2, 23.0))
sketch21.addConstraint(Sketcher.Constraint("DistanceX", -1, 1, 0, 2, 48.0))
sketch21.addConstraint(Sketcher.Constraint("DistanceY", 0, 2, -1, 1, 4.25))
pad16 = body.newObject("PartDesign::Pad", "Pad015")
pad16.Profile = sketch21
pad16.Length = 25
pad16.Reversed = True

sketch22 = body.newObject("Sketcher::SketchObject", "Sketch021")
sketch22.AttachmentSupport = (doc.getObject("XZ_Plane"), [""])
sketch22.MapMode = "FlatFace"
sketch22.AttachmentOffset = App.Placement(V(0, 0, -53), App.Rotation())
add_polygon(sketch22, [(50, -50), (40, -50), (40, -48), (47, -48), (47, -47), (48, -47), (48, -27.2), (50, -27.2)])
sketch22.addConstraint(Sketcher.Constraint("Horizontal", 0))
sketch22.addConstraint(Sketcher.Constraint("Vertical", 1))
sketch22.addConstraint(Sketcher.Constraint("Horizontal", 2))
sketch22.addConstraint(Sketcher.Constraint("Vertical", 3))
sketch22.addConstraint(Sketcher.Constraint("Horizontal", 4))
sketch22.addConstraint(Sketcher.Constraint("Vertical", 5))
sketch22.addConstraint(Sketcher.Constraint("Horizontal", 6))
sketch22.addConstraint(Sketcher.Constraint("Vertical", 7))
sketch22.addConstraint(Sketcher.Constraint("Equal", 6, 1))
sketch22.addConstraint(Sketcher.Constraint("Equal", 4, 3))
sketch22.addConstraint(Sketcher.Constraint("DistanceX", 0, 2, 0, 1, 10.0))
sketch22.addConstraint(Sketcher.Constraint("DistanceX", 2, 1, 2, 2, 7.0))
sketch22.addConstraint(Sketcher.Constraint("DistanceX", 4, 1, 4, 2, 1.0))
sketch22.addConstraint(Sketcher.Constraint("DistanceX", -1, 1, 0, 2, 40.0))
sketch22.addConstraint(Sketcher.Constraint("DistanceY", 0, 2, -1, 1, 50.0))
sketch22.addConstraint(Sketcher.Constraint("DistanceY", 5, 1, 5, 2, 19.75))
pad17 = body.newObject("PartDesign::Pad", "Pad016")
pad17.Profile = sketch22
pad17.Length = 10
pad17.Reversed = True

sketch23 = body.newObject("Sketcher::SketchObject", "Sketch022")
sketch23.AttachmentSupport = (doc.getObject("XZ_Plane"), [""])
sketch23.MapMode = "FlatFace"
sketch23.AttachmentOffset = App.Placement(V(0, 0, -53), App.Rotation())
add_polygon(sketch23, [(-33, -50), (-33, -48), (17, -48), (17, -50)])
sketch23.addConstraint(Sketcher.Constraint("Vertical", 0))
sketch23.addConstraint(Sketcher.Constraint("Horizontal", 1))
sketch23.addConstraint(Sketcher.Constraint("Vertical", 2))
sketch23.addConstraint(Sketcher.Constraint("Horizontal", 3))
sketch23.addConstraint(Sketcher.Constraint("DistanceX", 1, 1, 1, 2, 50.0))
sketch23.addConstraint(Sketcher.Constraint("DistanceY", 0, 1, 0, 2, 2.0))
sketch23.addConstraint(Sketcher.Constraint("DistanceX", 0, 2, -1, 1, 33.0))
sketch23.addConstraint(Sketcher.Constraint("DistanceY", 0, 2, -1, 1, 48.0))
pad18 = body.newObject("PartDesign::Pad", "Pad017")
pad18.Profile = sketch23
pad18.Length = 10
pad18.Reversed = True

sketch24 = body.newObject("Sketcher::SketchObject", "Sketch023")
sketch24.AttachmentSupport = (doc.getObject("XY_Plane"), [""])
sketch24.MapMode = "FlatFace"
sketch24.AttachmentOffset = App.Placement(V(0, 0, -48), App.Rotation())
add_polygon(sketch24, [(-33, 63), (-33, 18), (-31, 18), (-31, 63)])
sketch24.addConstraint(Sketcher.Constraint("Vertical", 0))
sketch24.addConstraint(Sketcher.Constraint("Horizontal", 1))
sketch24.addConstraint(Sketcher.Constraint("Vertical", 2))
sketch24.addConstraint(Sketcher.Constraint("Horizontal", 3))
sketch24.addConstraint(Sketcher.Constraint("DistanceX", 1, 1, 1, 2, 2.0))
sketch24.addConstraint(Sketcher.Constraint("DistanceY", 0, 2, 0, 1, 45.0))
sketch24.addConstraint(Sketcher.Constraint("DistanceX", 0, 2, -1, 1, 33.0))
sketch24.addConstraint(Sketcher.Constraint("DistanceY", -1, 1, 0, 2, 18.0))
pad19 = body.newObject("PartDesign::Pad", "Pad018")
pad19.Profile = sketch24
pad19.Length = 2

sketch25 = body.newObject("Sketcher::SketchObject", "Sketch024")
sketch25.AttachmentSupport = (doc.getObject("XZ_Plane"), [""])
sketch25.MapMode = "FlatFace"
sketch25.AttachmentOffset = App.Placement(V(0, 0, -3), App.Rotation())
add_polygon(sketch25, [(46, -39), (46, -37), (48, -37), (48, -39)])
sketch25.addConstraint(Sketcher.Constraint("Vertical", 0))
sketch25.addConstraint(Sketcher.Constraint("Horizontal", 1))
sketch25.addConstraint(Sketcher.Constraint("Vertical", 2))
sketch25.addConstraint(Sketcher.Constraint("Horizontal", 3))
sketch25.addConstraint(Sketcher.Constraint("Equal", 3, 0))
sketch25.addConstraint(Sketcher.Constraint("DistanceX", 1, 1, 1, 2, 2.0))
sketch25.addConstraint(Sketcher.Constraint("DistanceX", -1, 1, 0, 2, 46.0))
sketch25.addConstraint(Sketcher.Constraint("DistanceY", 0, 2, -1, 1, 37.0))
pad20 = body.newObject("PartDesign::Pad", "Pad019")
pad20.Profile = sketch25
pad20.Length = 60
pad20.Reversed = True

sketch26 = body.newObject("Sketcher::SketchObject", "Sketch025")
sketch26.AttachmentSupport = (doc.getObject("XZ_Plane"), [""])
sketch26.MapMode = "FlatFace"
sketch26.AttachmentOffset = App.Placement(V(0, 0, -3), App.Rotation())
add_polygon(sketch26, [(17, -50), (17, -49), (27, -49), (27, -50)])
sketch26.addConstraint(Sketcher.Constraint("Vertical", 0))
sketch26.addConstraint(Sketcher.Constraint("Horizontal", 1))
sketch26.addConstraint(Sketcher.Constraint("Vertical", 2))
sketch26.addConstraint(Sketcher.Constraint("Horizontal", 3))
sketch26.addConstraint(Sketcher.Constraint("DistanceX", 1, 1, 1, 2, 10.0))
sketch26.addConstraint(Sketcher.Constraint("DistanceY", 0, 1, 0, 2, 1.0))
sketch26.addConstraint(Sketcher.Constraint("DistanceX", -1, 1, 0, 2, 17.0))
sketch26.addConstraint(Sketcher.Constraint("DistanceY", 0, 2, -1, 1, 49.0))
pad21 = body.newObject("PartDesign::Pad", "Pad020")
pad21.Profile = sketch26
pad21.Length = 35
pad21.Reversed = True

sketch27 = body.newObject("Sketcher::SketchObject", "Sketch026")
sketch27.AttachmentSupport = (doc.getObject("XZ_Plane"), [""])
sketch27.MapMode = "FlatFace"
sketch27.AttachmentOffset = App.Placement(V(0, 0, -53), App.Rotation())
add_polygon(sketch27, [(46, 5.8), (46, 7.8), (48, 7.8), (48, 5.8)])
sketch27.addConstraint(Sketcher.Constraint("Vertical", 0))
sketch27.addConstraint(Sketcher.Constraint("Horizontal", 1))
sketch27.addConstraint(Sketcher.Constraint("Vertical", 2))
sketch27.addConstraint(Sketcher.Constraint("Horizontal", 3))
sketch27.addConstraint(Sketcher.Constraint("Equal", 3, 0))
sketch27.addConstraint(Sketcher.Constraint("DistanceX", 1, 1, 1, 2, 2.0))
sketch27.addConstraint(Sketcher.Constraint("DistanceX", -1, 1, 0, 2, 46.0))
sketch27.addConstraint(Sketcher.Constraint("DistanceY", -1, 1, 0, 2, 7.75))
pad22 = body.newObject("PartDesign::Pad", "Pad021")
pad22.Profile = sketch27
pad22.Length = 35

doc.recompute()
